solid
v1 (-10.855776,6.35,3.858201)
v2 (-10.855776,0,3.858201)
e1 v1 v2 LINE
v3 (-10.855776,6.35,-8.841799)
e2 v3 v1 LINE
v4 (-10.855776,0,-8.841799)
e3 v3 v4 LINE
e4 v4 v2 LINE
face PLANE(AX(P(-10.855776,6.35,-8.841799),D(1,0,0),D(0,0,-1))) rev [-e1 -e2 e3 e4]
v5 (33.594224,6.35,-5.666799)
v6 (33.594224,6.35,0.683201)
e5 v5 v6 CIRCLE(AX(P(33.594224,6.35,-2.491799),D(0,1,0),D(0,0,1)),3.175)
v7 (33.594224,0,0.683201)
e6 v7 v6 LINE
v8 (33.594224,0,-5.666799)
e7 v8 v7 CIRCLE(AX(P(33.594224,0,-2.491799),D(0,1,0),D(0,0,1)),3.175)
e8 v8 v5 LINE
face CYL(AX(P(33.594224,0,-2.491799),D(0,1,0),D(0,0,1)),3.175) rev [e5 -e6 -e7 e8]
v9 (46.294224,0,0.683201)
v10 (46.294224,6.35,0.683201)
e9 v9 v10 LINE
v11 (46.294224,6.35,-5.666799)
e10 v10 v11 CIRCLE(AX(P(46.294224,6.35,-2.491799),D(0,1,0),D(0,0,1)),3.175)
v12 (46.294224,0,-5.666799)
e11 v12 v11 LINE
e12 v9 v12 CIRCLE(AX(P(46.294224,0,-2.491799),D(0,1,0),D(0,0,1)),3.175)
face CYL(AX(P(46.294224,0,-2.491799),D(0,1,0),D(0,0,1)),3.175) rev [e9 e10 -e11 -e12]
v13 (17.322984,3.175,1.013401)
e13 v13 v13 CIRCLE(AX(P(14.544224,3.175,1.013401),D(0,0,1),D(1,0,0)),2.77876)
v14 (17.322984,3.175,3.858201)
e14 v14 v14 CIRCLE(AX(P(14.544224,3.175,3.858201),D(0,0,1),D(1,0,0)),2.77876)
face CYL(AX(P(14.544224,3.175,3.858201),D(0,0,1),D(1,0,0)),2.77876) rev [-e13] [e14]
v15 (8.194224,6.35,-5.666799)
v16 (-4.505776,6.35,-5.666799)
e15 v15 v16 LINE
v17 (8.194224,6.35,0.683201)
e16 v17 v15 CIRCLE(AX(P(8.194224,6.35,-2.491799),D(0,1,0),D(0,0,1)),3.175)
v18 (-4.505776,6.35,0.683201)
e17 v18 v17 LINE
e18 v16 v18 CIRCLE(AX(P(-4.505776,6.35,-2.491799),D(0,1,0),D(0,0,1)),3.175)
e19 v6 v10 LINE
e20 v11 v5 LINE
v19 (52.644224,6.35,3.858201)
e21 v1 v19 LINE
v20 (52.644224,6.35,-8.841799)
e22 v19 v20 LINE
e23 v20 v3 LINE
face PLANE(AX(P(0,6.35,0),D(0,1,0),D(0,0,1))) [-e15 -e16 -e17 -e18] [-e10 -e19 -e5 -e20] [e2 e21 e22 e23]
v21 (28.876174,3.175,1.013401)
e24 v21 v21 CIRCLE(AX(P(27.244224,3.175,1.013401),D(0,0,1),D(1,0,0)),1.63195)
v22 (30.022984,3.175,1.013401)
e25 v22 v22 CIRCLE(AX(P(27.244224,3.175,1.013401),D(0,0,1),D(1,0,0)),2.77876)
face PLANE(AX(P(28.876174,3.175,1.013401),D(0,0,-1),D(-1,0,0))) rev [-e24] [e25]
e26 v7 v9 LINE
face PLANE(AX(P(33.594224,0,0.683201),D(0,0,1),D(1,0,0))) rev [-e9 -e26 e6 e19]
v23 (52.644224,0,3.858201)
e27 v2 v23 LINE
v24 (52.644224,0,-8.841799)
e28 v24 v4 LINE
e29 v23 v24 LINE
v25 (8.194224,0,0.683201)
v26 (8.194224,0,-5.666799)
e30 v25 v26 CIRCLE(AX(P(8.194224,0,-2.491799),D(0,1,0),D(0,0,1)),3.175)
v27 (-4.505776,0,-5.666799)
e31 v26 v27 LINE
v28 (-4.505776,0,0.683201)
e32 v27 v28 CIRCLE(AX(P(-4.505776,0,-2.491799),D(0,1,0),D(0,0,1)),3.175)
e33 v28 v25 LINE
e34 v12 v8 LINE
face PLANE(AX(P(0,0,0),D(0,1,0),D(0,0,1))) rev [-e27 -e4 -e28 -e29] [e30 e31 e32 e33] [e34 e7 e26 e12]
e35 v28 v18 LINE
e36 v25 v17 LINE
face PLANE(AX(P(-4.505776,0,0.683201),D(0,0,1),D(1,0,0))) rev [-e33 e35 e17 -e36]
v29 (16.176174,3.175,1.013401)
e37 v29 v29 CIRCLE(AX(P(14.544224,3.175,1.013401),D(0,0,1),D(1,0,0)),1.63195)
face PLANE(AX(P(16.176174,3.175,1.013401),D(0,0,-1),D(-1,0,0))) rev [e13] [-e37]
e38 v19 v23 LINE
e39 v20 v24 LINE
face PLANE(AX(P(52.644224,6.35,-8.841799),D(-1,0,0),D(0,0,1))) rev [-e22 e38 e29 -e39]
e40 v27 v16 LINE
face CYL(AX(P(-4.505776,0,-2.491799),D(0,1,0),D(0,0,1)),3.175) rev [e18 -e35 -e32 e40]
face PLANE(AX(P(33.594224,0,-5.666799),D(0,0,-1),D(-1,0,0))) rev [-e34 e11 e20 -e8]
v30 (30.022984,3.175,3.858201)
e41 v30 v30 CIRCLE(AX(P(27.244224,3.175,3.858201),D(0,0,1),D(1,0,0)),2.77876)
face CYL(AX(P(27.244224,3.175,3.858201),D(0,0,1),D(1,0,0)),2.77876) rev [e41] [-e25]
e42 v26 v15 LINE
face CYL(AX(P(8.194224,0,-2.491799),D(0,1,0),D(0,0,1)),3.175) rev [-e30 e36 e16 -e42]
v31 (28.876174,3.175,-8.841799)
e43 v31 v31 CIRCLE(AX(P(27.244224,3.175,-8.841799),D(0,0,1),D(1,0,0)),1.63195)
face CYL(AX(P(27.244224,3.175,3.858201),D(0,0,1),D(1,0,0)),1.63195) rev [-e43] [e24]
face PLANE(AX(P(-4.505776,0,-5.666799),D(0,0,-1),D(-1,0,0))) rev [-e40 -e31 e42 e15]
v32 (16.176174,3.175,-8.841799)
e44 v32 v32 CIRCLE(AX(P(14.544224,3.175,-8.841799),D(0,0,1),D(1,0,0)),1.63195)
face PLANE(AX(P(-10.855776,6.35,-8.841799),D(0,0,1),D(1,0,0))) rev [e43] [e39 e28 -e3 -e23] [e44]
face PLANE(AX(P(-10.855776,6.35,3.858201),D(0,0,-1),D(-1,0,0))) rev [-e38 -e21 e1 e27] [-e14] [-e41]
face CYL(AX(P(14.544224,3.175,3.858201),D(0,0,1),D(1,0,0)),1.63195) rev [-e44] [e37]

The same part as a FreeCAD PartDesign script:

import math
import FreeCAD as App
import Part
import Sketcher
Q = App.Units.Quantity


def add_polygon(sketch, points):
    """Adds a closed chain of lines whose ends are joined by coincident constraints."""
    first, n = sketch.GeometryCount, len(points)
    for a, b in zip(points, points[1:] + points[:1]):
        sketch.addGeometry(Part.LineSegment(App.Vector(*a, 0), App.Vector(*b, 0)), False)
    for i in range(n):
        sketch.addConstraint(Sketcher.Constraint("Coincident", first + i, 2, first + (i + 1) % n, 1))

doc = App.newDocument("Part")
body = doc.addObject("PartDesign::Body", "Body")

# Sketch on XZ plane
sketch1 = body.newObject("Sketcher::SketchObject", "Sketch")
sketch1.AttachmentSupport = (doc.getObject("XZ_Plane"), [""])
sketch1.MapMode = "FlatFace"
add_polygon(sketch1, [(-10.855776, -8.841799), (-10.855776, 3.858201), (52.644224, 3.858201), (52.644224, -8.841799)])  # lines 0-3
sketch1.addConstraint([
    Sketcher.Constraint("Vertical", 0),
    Sketcher.Constraint("Horizontal", 1),
    Sketcher.Constraint("Vertical", 2),
    Sketcher.Constraint("Horizontal", 3),
    Sketcher.Constraint("DistanceX", 1, 1, 1, 2, Q("2.5 in")),
    Sketcher.Constraint("DistanceY", 0, 1, 0, 2, Q("0.5 in")),
    Sketcher.Constraint("DistanceY", -1, 1, 0, 2, 3.858201),
    Sketcher.Constraint("DistanceX", 0, 2, -1, 1, 10.855776),
])
pad1 = body.newObject("PartDesign::Pad", "Pad")
pad1.Profile = sketch1
pad1.Length = Q("0.25 in")
pad1.Reversed = True

# Sketch on XY plane
sketch2 = body.newObject("Sketcher::SketchObject", "Sketch001")
sketch2.AttachmentSupport = (doc.getObject("XY_Plane"), [""])
sketch2.MapMode = "FlatFace"
sketch2.AttachmentOffset = App.Placement(App.Vector(0, 0, 3.858201), App.Rotation())
sketch2.addGeometry([
    Part.Circle(App.Vector(14.544224, 3.175, 0), App.Vector(0, 0, 1), 1.63195),
    Part.Circle(App.Vector(27.244224, 3.175, 0), App.Vector(0, 0, 1), 1.63195),
], False)
sketch2.addConstraint([
    Sketcher.Constraint("Equal", 0, 1),
    Sketcher.Constraint("Horizontal", 0, 3, 1, 3),
    Sketcher.Constraint("Diameter", 0, Q("0.1285 in")),
    Sketcher.Constraint("DistanceX", 0, 3, 1, 3, Q("0.5 in")),
    Sketcher.Constraint("DistanceY", -1, 1, 0, 3, Q("0.125 in")),
    Sketcher.Constraint("DistanceX", -1, 1, 0, 3, 14.544224),
])
doc.recompute()
hole = body.newObject("PartDesign::Hole", "Hole")
hole.Profile = sketch2
hole.ThreadType = "None"
hole.Diameter = Q("0.1285 in")
hole.DepthType = "ThroughAll"
hole.HoleCutType = "Counterbore"
hole.HoleCutDiameter = Q("0.2188 in")
hole.HoleCutDepth = Q("0.112 in")

# Sketch on XZ plane
sketch3 = body.newObject("Sketcher::SketchObject", "Sketch002")
sketch3.AttachmentSupport = (doc.getObject("XZ_Plane"), [""])
sketch3.MapMode = "FlatFace"
sketch3.AttachmentOffset = App.Placement(App.Vector(0, 0, -0.25 * 25.4), App.Rotation())
sketch3.addGeometry([
    Part.LineSegment(App.Vector(8.194224, -5.666799, 0), App.Vector(-4.505776, -5.666799, 0)),  # 0
    Part.ArcOfCircle(Part.Circle(App.Vector(-4.505776, -2.491799, 0), App.Vector(0, 0, 1), 3.175), math.radians(90), math.radians(270)),  # 1
    Part.LineSegment(App.Vector(-4.505776, 0.683201, 0), App.Vector(8.194224, 0.683201, 0)),  # 2
    Part.ArcOfCircle(Part.Circle(App.Vector(8.194224, -2.491799, 0), App.Vector(0, 0, 1), 3.175), math.radians(-90), math.radians(90)),  # 3
    Part.LineSegment(App.Vector(46.294224, -5.666799, 0), App.Vector(33.594224, -5.666799, 0)),  # 4
    Part.ArcOfCircle(Part.Circle(App.Vector(33.594224, -2.491799, 0), App.Vector(0, 0, 1), 3.175), math.radians(90), math.radians(270)),  # 5
    Part.LineSegment(App.Vector(33.594224, 0.683201, 0), App.Vector(46.294224, 0.683201, 0)),  # 6
    Part.ArcOfCircle(Part.Circle(App.Vector(46.294224, -2.491799, 0), App.Vector(0, 0, 1), 3.175), math.radians(-90), math.radians(90)),  # 7
], False)
sketch3.addConstraint([
    Sketcher.Constraint("Tangent", 0, 2, 1, 2),
    Sketcher.Constraint("Tangent", 1, 1, 2, 1),
    Sketcher.Constraint("Tangent", 2, 2, 3, 2),
    Sketcher.Constraint("Tangent", 3, 1, 0, 1),
    Sketcher.Constraint("Tangent", 4, 2, 5, 2),
    Sketcher.Constraint("Tangent", 5, 1, 6, 1),
    Sketcher.Constraint("Tangent", 6, 2, 7, 2),
    Sketcher.Constraint("Tangent", 7, 1, 4, 1),
    Sketcher.Constraint("Horizontal", 0),
    Sketcher.Constraint("Horizontal", 2),
    Sketcher.Constraint("Horizontal", 4),
    Sketcher.Constraint("Horizontal", 6),
    Sketcher.Constraint("Equal", 3, 5),
    Sketcher.Constraint("Horizontal", 3, 3, 5, 3),
    Sketcher.Constraint("Equal", 2, 4),
    Sketcher.Constraint("DistanceX", 0, 2, 0, 1, Q("0.5 in")),
    Sketcher.Constraint("Radius", 1, Q("0.125 in")),
    Sketcher.Constraint("DistanceX", 3, 3, 5, 3, Q("1 in")),
    Sketcher.Constraint("DistanceY", 1, 3, -1, 1, 2.491799),
    Sketcher.Constraint("DistanceX", 1, 3, -1, 1, 4.505776),
])
pocket1 = body.newObject("PartDesign::Pocket", "Pocket")
pocket1.Profile = sketch3
pocket1.Type = "ThroughAll"
pocket1.Reversed = True

doc.recompute()
